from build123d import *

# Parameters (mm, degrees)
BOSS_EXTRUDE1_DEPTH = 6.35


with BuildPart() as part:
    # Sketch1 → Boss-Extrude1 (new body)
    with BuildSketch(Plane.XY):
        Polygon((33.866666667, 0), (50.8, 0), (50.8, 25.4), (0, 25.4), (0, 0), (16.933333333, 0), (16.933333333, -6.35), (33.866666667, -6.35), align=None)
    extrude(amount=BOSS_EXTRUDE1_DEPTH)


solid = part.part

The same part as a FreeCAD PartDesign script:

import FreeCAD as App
import Part
import Sketcher
from FreeCAD import Vector
Q = App.Units.Quantity


def add_polygon(sketch, points):
    """Adds a closed chain of lines whose ends are joined by coincident constraints."""
    first, n = sketch.GeometryCount, len(points)
    for a, b in zip(points, points[1:] + points[:1]):
        sketch.addGeometry(Part.LineSegment(App.Vector(*a, 0), App.Vector(*b, 0)), False)
    for i in range(n):
        sketch.addConstraint(Sketcher.Constraint("Coincident", first + i, 2, first + (i + 1) % n, 1))

doc = App.newDocument("Part")
params = doc.addObject("Spreadsheet::Sheet", "Params")
for row, (alias, value) in enumerate([
    ("sketch1_width", "2 in"),
    ("sketch1_height", "1 in"),
    ("sketch1_height2", "0.25 in"),
    ("pad1_length", "0.25 in"),
], start=1):
    params.set(f"A{row}", alias)
    params.set(f"B{row}", "=" + value)
    params.setAlias(f"B{row}", alias)

body = doc.addObject("PartDesign::Body", "Body")

sketch1 = body.newObject("Sketcher::SketchObject", "Sketch")
sketch1.AttachmentSupport = (doc.getObject("XY_Plane"), [""])
sketch1.MapMode = "FlatFace"
add_polygon(sketch1, [(34, 0), (51, 0), (51, 25), (0, 25), (0, 0), (17, 0), (17, -6), (34, -6)])
sketch1.addConstraint([
    Sketcher.Constraint("Horizontal", 0),
    Sketcher.Constraint("Vertical", 1),
    Sketcher.Constraint("Horizontal", 2),
    Sketcher.Constraint("Vertical", 3),
    Sketcher.Constraint("Horizontal", 4),
    Sketcher.Constraint("Vertical", 5),
    Sketcher.Constraint("Horizontal", 6),
    Sketcher.Constraint("Vertical", 7),
    Sketcher.Constraint("Coincident", 3, 2, -1, 1),
    Sketcher.Constraint("PointOnObject", 0, 2, -1),
    Sketcher.Constraint("Equal", 0, 4),
    Sketcher.Constraint("Equal", 4, 6),
    Sketcher.Constraint("DistanceX", 2, 2, 2, 1, Q("2 in")),
    Sketcher.Constraint("DistanceY", 1, 1, 1, 2, Q("1 in")),
    Sketcher.Constraint("DistanceY", 5, 2, 5, 1, Q("0.25 in")),
])
sketch1.setExpression("Constraints[20]", "Params.sketch1_width")
sketch1.setExpression("Constraints[21]", "Params.sketch1_height")
sketch1.setExpression("Constraints[22]", "Params.sketch1_height2")
pad1 = body.newObject("PartDesign::Pad", "Pad")
pad1.Profile = sketch1
pad1.setExpression("Length", "Params.pad1_length")

doc.recompute()
